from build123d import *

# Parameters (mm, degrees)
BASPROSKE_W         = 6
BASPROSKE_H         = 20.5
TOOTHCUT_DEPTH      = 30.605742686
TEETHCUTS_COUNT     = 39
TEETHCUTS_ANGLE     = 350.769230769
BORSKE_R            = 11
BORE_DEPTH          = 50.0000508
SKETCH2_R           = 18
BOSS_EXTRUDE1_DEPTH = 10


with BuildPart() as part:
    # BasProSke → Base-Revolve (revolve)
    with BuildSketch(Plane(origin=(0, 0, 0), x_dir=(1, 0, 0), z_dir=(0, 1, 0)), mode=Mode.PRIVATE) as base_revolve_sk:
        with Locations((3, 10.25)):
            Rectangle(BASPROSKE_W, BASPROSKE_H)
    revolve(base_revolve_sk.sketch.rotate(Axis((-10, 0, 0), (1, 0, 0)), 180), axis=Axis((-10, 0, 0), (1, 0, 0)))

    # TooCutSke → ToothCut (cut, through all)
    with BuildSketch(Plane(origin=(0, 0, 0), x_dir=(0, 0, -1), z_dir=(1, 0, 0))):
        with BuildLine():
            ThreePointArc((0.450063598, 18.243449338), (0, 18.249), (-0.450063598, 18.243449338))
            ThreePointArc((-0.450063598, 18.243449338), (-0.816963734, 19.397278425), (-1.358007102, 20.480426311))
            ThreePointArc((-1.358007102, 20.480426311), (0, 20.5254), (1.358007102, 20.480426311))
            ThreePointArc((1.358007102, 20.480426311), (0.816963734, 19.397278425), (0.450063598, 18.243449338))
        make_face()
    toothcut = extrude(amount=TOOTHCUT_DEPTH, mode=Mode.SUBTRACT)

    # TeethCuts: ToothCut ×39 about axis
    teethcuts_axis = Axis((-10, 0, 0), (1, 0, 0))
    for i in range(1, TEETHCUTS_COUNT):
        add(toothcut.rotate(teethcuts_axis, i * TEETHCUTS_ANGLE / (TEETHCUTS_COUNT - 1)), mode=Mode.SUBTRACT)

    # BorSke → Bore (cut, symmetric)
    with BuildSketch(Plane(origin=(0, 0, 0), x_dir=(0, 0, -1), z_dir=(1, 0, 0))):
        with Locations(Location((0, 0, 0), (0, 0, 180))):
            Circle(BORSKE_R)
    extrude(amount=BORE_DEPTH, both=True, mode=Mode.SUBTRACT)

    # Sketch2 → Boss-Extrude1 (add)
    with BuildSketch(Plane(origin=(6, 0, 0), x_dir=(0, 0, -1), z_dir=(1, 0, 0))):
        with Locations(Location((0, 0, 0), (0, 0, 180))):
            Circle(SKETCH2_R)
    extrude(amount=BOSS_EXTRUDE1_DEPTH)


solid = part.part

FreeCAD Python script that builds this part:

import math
import FreeCAD as App
import Part
import Sketcher
Q = App.Units.Quantity

doc = App.newDocument("Part")
body = doc.addObject("PartDesign::Body", "Body")

# Sketch on XZ plane
sketch1 = doc.addObject("Sketcher::SketchObject", "Sketch")
body.addObject(sketch1)
sketch1.AttachmentSupport = (doc.XZ_Plane, [""])
sketch1.MapMode = "FlatFace"
sketch1.addGeometry(Part.LineSegment(App.Vector(0, -20, 0), App.Vector(0, 0, 0)), False)
sketch1.addGeometry(Part.LineSegment(App.Vector(0, 0, 0), App.Vector(6, 0, 0)), False)
sketch1.addGeometry(Part.LineSegment(App.Vector(6, 0, 0), App.Vector(6, -20, 0)), False)
sketch1.addGeometry(Part.LineSegment(App.Vector(6, -20, 0), App.Vector(0, -20, 0)), False)
sketch1.addConstraint(Sketcher.Constraint("Coincident", 0, 2, 1, 1))
sketch1.addConstraint(Sketcher.Constraint("Coincident", 1, 2, 2, 1))
sketch1.addConstraint(Sketcher.Constraint("Coincident", 2, 2, 3, 1))
sketch1.addConstraint(Sketcher.Constraint("Coincident", 3, 2, 0, 1))
sketch1.addConstraint(Sketcher.Constraint("Vertical", 0))
sketch1.addConstraint(Sketcher.Constraint("Horizontal", 1))
sketch1.addConstraint(Sketcher.Constraint("Vertical", 2))
sketch1.addConstraint(Sketcher.Constraint("Horizontal", 3))
sketch1.addConstraint(Sketcher.Constraint("Coincident", 0, 2, -1, 1))
sketch1.addConstraint(Sketcher.Constraint("DistanceX", 1, 1, 1, 2, Q("6 mm")))
sketch1.addConstraint(Sketcher.Constraint("DistanceY", 0, 1, 0, 2, Q("20.5 mm")))
revolution = doc.addObject("PartDesign::Revolution", "Revolution")
body.addObject(revolution)
revolution.Profile = sketch1
revolution.ReferenceAxis = (sketch1, ["H_Axis"])
revolution.Angle = 360

# Sketch on YZ plane
sketch2 = doc.addObject("Sketcher::SketchObject", "Sketch001")
body.addObject(sketch2)
sketch2.AttachmentSupport = (doc.YZ_Plane, [""])
sketch2.MapMode = "FlatFace"
sketch2.addGeometry(Part.ArcOfCircle(Part.Circle(App.Vector(0, 0, 0), App.Vector(0, 0, 1), 18.2), math.radians(-1.41), math.radians(1.41)), False)
sketch2.addGeometry(Part.ArcOfCircle(Part.Circle(App.Vector(16.5, -8, 0), App.Vector(0, 0, 1), 7.8), math.radians(59.01), math.radians(76.81)), False)
sketch2.addGeometry(Part.ArcOfCircle(Part.Circle(App.Vector(0, 0, 0), App.Vector(0, 0, 1), 20.5), math.radians(-3.79), math.radians(3.79)), False)
sketch2.addGeometry(Part.ArcOfCircle(Part.Circle(App.Vector(16.5, 8, 0), App.Vector(0, 0, 1), 7.8), math.radians(-76.81), math.radians(-59.01)), False)
sketch2.addConstraint(Sketcher.Constraint("Coincident", 0, 1, 1, 2))
sketch2.addConstraint(Sketcher.Constraint("Coincident", 1, 1, 2, 1))
sketch2.addConstraint(Sketcher.Constraint("Coincident", 2, 2, 3, 2))
sketch2.addConstraint(Sketcher.Constraint("Coincident", 3, 1, 0, 2))
sketch2.addConstraint(Sketcher.Constraint("Coincident", 0, 3, -1, 1))
sketch2.addConstraint(Sketcher.Constraint("Coincident", 2, 3, -1, 1))
sketch2.addConstraint(Sketcher.Constraint("Equal", 1, 3))
sketch2.addConstraint(Sketcher.Constraint("Symmetric", 1, 3, 3, 3, -1))
sketch2.addConstraint(Sketcher.Constraint("Radius", 1, Q("7.8 mm")))
sketch2.addConstraint(Sketcher.Constraint("Radius", 0, Q("18.248999 mm")))
sketch2.addConstraint(Sketcher.Constraint("Radius", 2, Q("20.5254 mm")))
sketch2.addConstraint(Sketcher.Constraint("DistanceY", 0, 1, 3, 3, Q("8.4944 mm")))
sketch2.addConstraint(Sketcher.Constraint("DistanceY", 1, 3, 3, 3, Q("16.088672 mm")))
pocket1 = doc.addObject("PartDesign::Pocket", "Pocket")
body.addObject(pocket1)
pocket1.Profile = sketch2
pocket1.Type = "ThroughAll"
pocket1.Reversed = True
doc.recompute()

polarpattern = doc.addObject("PartDesign::PolarPattern", "PolarPattern")
body.addObject(polarpattern)
polarpattern.Originals = [pocket1]
polarpattern.Axis = (doc.X_Axis, [""])
polarpattern.Angle = 360
polarpattern.Occurrences = 39
body.Tip = polarpattern

# Sketch on YZ plane
sketch3 = doc.addObject("Sketcher::SketchObject", "Sketch002")
body.addObject(sketch3)
sketch3.AttachmentSupport = (doc.YZ_Plane, [""])
sketch3.MapMode = "FlatFace"
sketch3.addGeometry(Part.Circle(App.Vector(0, 0, 0), App.Vector(0, 0, 1), 11), False)
sketch3.addConstraint(Sketcher.Constraint("Coincident", 0, 3, -1, 1))
sketch3.addConstraint(Sketcher.Constraint("Diameter", 0, Q("22 mm")))
pocket2 = doc.addObject("PartDesign::Pocket", "Pocket001")
body.addObject(pocket2)
pocket2.Profile = sketch3
pocket2.Length = 100.000102
pocket2.Midplane = True

# Sketch on YZ plane
sketch4 = doc.addObject("Sketcher::SketchObject", "Sketch003")
body.addObject(sketch4)
sketch4.AttachmentSupport = (doc.YZ_Plane, [""])
sketch4.MapMode = "FlatFace"
sketch4.AttachmentOffset = App.Placement(App.Vector(0, 0, 6), App.Rotation())
sketch4.addGeometry(Part.Circle(App.Vector(0, 0, 0), App.Vector(0, 0, 1), 18), False)
sketch4.addConstraint(Sketcher.Constraint("Coincident", 0, 3, -1, 1))
sketch4.addConstraint(Sketcher.Constraint("Diameter", 0, Q("36 mm")))
pad1 = doc.addObject("PartDesign::Pad", "Pad")
body.addObject(pad1)
pad1.Profile = sketch4
pad1.Length = 10

doc.recompute()
